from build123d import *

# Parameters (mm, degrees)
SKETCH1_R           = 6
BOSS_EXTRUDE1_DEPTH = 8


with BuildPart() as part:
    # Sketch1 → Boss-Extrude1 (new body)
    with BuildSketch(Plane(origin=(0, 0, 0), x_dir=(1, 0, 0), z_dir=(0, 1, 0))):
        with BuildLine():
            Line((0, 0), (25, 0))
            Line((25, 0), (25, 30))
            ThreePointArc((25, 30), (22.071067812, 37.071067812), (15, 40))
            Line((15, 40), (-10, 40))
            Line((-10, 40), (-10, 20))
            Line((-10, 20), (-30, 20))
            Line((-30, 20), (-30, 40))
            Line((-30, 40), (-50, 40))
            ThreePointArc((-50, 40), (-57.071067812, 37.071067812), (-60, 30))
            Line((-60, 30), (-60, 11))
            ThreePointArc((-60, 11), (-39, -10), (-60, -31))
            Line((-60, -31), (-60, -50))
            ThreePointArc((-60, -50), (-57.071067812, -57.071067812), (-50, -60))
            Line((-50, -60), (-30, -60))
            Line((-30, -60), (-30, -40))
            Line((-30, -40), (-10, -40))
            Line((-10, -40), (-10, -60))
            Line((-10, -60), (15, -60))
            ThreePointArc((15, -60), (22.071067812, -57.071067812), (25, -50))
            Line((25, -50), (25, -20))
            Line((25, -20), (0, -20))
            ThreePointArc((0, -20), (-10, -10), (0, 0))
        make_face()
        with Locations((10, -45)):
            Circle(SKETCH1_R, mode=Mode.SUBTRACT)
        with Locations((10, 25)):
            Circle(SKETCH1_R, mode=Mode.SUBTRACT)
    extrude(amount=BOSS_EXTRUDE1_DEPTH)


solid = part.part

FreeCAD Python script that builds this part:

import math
import FreeCAD as App
import Part
import Sketcher
from FreeCAD import Vector
Q = App.Units.Quantity

doc = App.newDocument("Part")
body = doc.addObject("PartDesign::Body", "Body")

# Sketch on XZ plane
sketch1 = body.newObject("Sketcher::SketchObject", "Sketch")
sketch1.AttachmentSupport = (doc.getObject("XZ_Plane"), [""])
sketch1.MapMode = "FlatFace"
sketch1.addGeometry(Part.LineSegment(Vector(0, 0, 0), Vector(25, 0, 0)), False)
sketch1.addGeometry(Part.LineSegment(Vector(25, 0, 0), Vector(25, -30, 0)), False)
sketch1.addGeometry(Part.ArcOfCircle(Part.Circle(Vector(15, -30, 0), Vector(0, 0, 1), 10), math.radians(-90), math.radians(0)), False)
sketch1.addGeometry(Part.LineSegment(Vector(15, -40, 0), Vector(-10, -40, 0)), False)
sketch1.addGeometry(Part.LineSegment(Vector(-10, -40, 0), Vector(-10, -20, 0)), False)
sketch1.addGeometry(Part.LineSegment(Vector(-10, -20, 0), Vector(-30, -20, 0)), False)
sketch1.addGeometry(Part.LineSegment(Vector(-30, -20, 0), Vector(-30, -40, 0)), False)
sketch1.addGeometry(Part.LineSegment(Vector(-30, -40, 0), Vector(-50, -40, 0)), False)
sketch1.addGeometry(Part.ArcOfCircle(Part.Circle(Vector(-50, -30, 0), Vector(0, 0, 1), 10), math.radians(180), math.radians(270)), False)
sketch1.addGeometry(Part.LineSegment(Vector(-60, -30, 0), Vector(-60, -11, 0)), False)
sketch1.addGeometry(Part.ArcOfCircle(Part.Circle(Vector(-60, 10, 0), Vector(0, 0, 1), 21), math.radians(-90), math.radians(90)), False)
sketch1.addGeometry(Part.LineSegment(Vector(-60, 31, 0), Vector(-60, 50, 0)), False)
sketch1.addGeometry(Part.ArcOfCircle(Part.Circle(Vector(-50, 50, 0), Vector(0, 0, 1), 10), math.radians(90), math.radians(180)), False)
sketch1.addGeometry(Part.LineSegment(Vector(-50, 60, 0), Vector(-30, 60, 0)), False)
sketch1.addGeometry(Part.LineSegment(Vector(-30, 60, 0), Vector(-30, 40, 0)), False)
sketch1.addGeometry(Part.LineSegment(Vector(-30, 40, 0), Vector(-10, 40, 0)), False)
sketch1.addGeometry(Part.LineSegment(Vector(-10, 40, 0), Vector(-10, 60, 0)), False)
sketch1.addGeometry(Part.LineSegment(Vector(-10, 60, 0), Vector(15, 60, 0)), False)
sketch1.addGeometry(Part.ArcOfCircle(Part.Circle(Vector(15, 50, 0), Vector(0, 0, 1), 10), math.radians(0), math.radians(90)), False)
sketch1.addGeometry(Part.LineSegment(Vector(25, 50, 0), Vector(25, 20, 0)), False)
sketch1.addGeometry(Part.LineSegment(Vector(25, 20, 0), Vector(0, 20, 0)), False)
sketch1.addGeometry(Part.ArcOfCircle(Part.Circle(Vector(0, 10, 0), Vector(0, 0, 1), 10), math.radians(90), math.radians(270)), False)
sketch1.addGeometry(Part.Circle(Vector(10, 45, 0), Vector(0, 0, 1), 6), False)
sketch1.addGeometry(Part.Circle(Vector(10, -25, 0), Vector(0, 0, 1), 6), False)
sketch1.addConstraint(Sketcher.Constraint("Coincident", 0, 2, 1, 1))
sketch1.addConstraint(Sketcher.Constraint("Tangent", 1, 2, 2, 2))
sketch1.addConstraint(Sketcher.Constraint("Tangent", 2, 1, 3, 1))
sketch1.addConstraint(Sketcher.Constraint("Coincident", 3, 2, 4, 1))
sketch1.addConstraint(Sketcher.Constraint("Coincident", 4, 2, 5, 1))
sketch1.addConstraint(Sketcher.Constraint("Coincident", 5, 2, 6, 1))
sketch1.addConstraint(Sketcher.Constraint("Coincident", 6, 2, 7, 1))
sketch1.addConstraint(Sketcher.Constraint("Tangent", 7, 2, 8, 2))
sketch1.addConstraint(Sketcher.Constraint("Tangent", 8, 1, 9, 1))
sketch1.addConstraint(Sketcher.Constraint("Coincident", 9, 2, 10, 1))
sketch1.addConstraint(Sketcher.Constraint("Coincident", 10, 2, 11, 1))
sketch1.addConstraint(Sketcher.Constraint("Tangent", 11, 2, 12, 2))
sketch1.addConstraint(Sketcher.Constraint("Tangent", 12, 1, 13, 1))
sketch1.addConstraint(Sketcher.Constraint("Coincident", 13, 2, 14, 1))
sketch1.addConstraint(Sketcher.Constraint("Coincident", 14, 2, 15, 1))
sketch1.addConstraint(Sketcher.Constraint("Coincident", 15, 2, 16, 1))
sketch1.addConstraint(Sketcher.Constraint("Coincident", 16, 2, 17, 1))
sketch1.addConstraint(Sketcher.Constraint("Tangent", 17, 2, 18, 2))
sketch1.addConstraint(Sketcher.Constraint("Tangent", 18, 1, 19, 1))
sketch1.addConstraint(Sketcher.Constraint("Coincident", 19, 2, 20, 1))
sketch1.addConstraint(Sketcher.Constraint("Tangent", 20, 2, 21, 1))
sketch1.addConstraint(Sketcher.Constraint("Tangent", 21, 2, 0, 1))
sketch1.addConstraint(Sketcher.Constraint("Horizontal", 0))
sketch1.addConstraint(Sketcher.Constraint("Vertical", 1))
sketch1.addConstraint(Sketcher.Constraint("Horizontal", 3))
sketch1.addConstraint(Sketcher.Constraint("Vertical", 4))
sketch1.addConstraint(Sketcher.Constraint("Horizontal", 5))
sketch1.addConstraint(Sketcher.Constraint("Vertical", 6))
sketch1.addConstraint(Sketcher.Constraint("Horizontal", 7))
sketch1.addConstraint(Sketcher.Constraint("Vertical", 9))
sketch1.addConstraint(Sketcher.Constraint("Vertical", 11))
sketch1.addConstraint(Sketcher.Constraint("Horizontal", 13))
sketch1.addConstraint(Sketcher.Constraint("Vertical", 14))
sketch1.addConstraint(Sketcher.Constraint("Horizontal", 15))
sketch1.addConstraint(Sketcher.Constraint("Vertical", 16))
sketch1.addConstraint(Sketcher.Constraint("Horizontal", 17))
sketch1.addConstraint(Sketcher.Constraint("Vertical", 19))
sketch1.addConstraint(Sketcher.Constraint("Horizontal", 20))
sketch1.addConstraint(Sketcher.Constraint("Coincident", 21, 2, -1, 1))
sketch1.addConstraint(Sketcher.Constraint("Equal", 2, 8))
sketch1.addConstraint(Sketcher.Constraint("Equal", 8, 12))
sketch1.addConstraint(Sketcher.Constraint("Equal", 12, 18))
sketch1.addConstraint(Sketcher.Constraint("Equal", 18, 21))
sketch1.addConstraint(Sketcher.Constraint("Equal", 22, 23))
sketch1.addConstraint(Sketcher.Constraint("Symmetric", 6, 2, 14, 2, -1))
sketch1.addConstraint(Sketcher.Constraint("Symmetric", 3, 2, 15, 2, -1))
sketch1.addConstraint(Sketcher.Constraint("Horizontal", 12, 3, 18, 3))
sketch1.addConstraint(Sketcher.Constraint("Horizontal", 10, 3, 21, 3))
sketch1.addConstraint(Sketcher.Constraint("Vertical", 8, 3, 12, 3))
sketch1.addConstraint(Sketcher.Constraint("Vertical", 2, 3, 18, 3))
sketch1.addConstraint(Sketcher.Constraint("Vertical", 22, 3, 23, 3))
sketch1.addConstraint(Sketcher.Constraint("Vertical", 10, 3, 8, 1))
sketch1.addConstraint(Sketcher.Constraint("Equal", 0, 3))
sketch1.addConstraint(Sketcher.Constraint("Equal", 5, 7))
sketch1.addConstraint(Sketcher.Constraint("Equal", 15, 4))
sketch1.addConstraint(Sketcher.Constraint("Equal", 9, 11))
sketch1.addConstraint(Sketcher.Constraint("Equal", 6, 14))
sketch1.addConstraint(Sketcher.Constraint("Diameter", 22, Q("12 mm")))
sketch1.addConstraint(Sketcher.Constraint("Radius", 2, Q("10 mm")))
sketch1.addConstraint(Sketcher.Constraint("Radius", 10, Q("21 mm")))
sketch1.addConstraint(Sketcher.Constraint("DistanceX", 0, 1, 0, 2, Q("25 mm")))
sketch1.addConstraint(Sketcher.Constraint("DistanceY", 1, 2, 1, 1, Q("30 mm")))
sketch1.addConstraint(Sketcher.Constraint("DistanceX", -1, 1, 22, 3, Q("10 mm")))
sketch1.addConstraint(Sketcher.Constraint("DistanceY", -1, 1, 22, 3, Q("45 mm")))
sketch1.addConstraint(Sketcher.Constraint("DistanceY", 23, 3, -1, 1, Q("25 mm")))
pad1 = body.newObject("PartDesign::Pad", "Pad")
pad1.Profile = sketch1
pad1.Length = 8
pad1.Reversed = True

doc.recompute()
